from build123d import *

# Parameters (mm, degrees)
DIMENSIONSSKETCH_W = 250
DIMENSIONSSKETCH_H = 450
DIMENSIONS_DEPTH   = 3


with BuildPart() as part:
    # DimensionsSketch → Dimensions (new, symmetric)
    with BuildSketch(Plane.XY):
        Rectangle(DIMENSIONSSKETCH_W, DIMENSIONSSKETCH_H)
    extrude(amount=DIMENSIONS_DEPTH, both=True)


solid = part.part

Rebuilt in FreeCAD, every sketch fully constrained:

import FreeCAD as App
import Part
import Sketcher
from FreeCAD import Vector


def add_polygon(sketch, points):
    """Adds a closed chain of lines whose ends are joined by coincident constraints."""
    first, n = sketch.GeometryCount, len(points)
    for a, b in zip(points, points[1:] + points[:1]):
        sketch.addGeometry(Part.LineSegment(App.Vector(*a, 0), App.Vector(*b, 0)), False)
    for i in range(n):
        sketch.addConstraint(Sketcher.Constraint("Coincident", first + i, 2, first + (i + 1) % n, 1))

doc = App.newDocument("Part")
body = doc.addObject("PartDesign::Body", "Body")

# Sketch on XY plane
sketch1 = doc.addObject("Sketcher::SketchObject", "Sketch")
body.addObject(sketch1)
sketch1.AttachmentSupport = (doc.XY_Plane, [""])
sketch1.MapMode = "FlatFace"
add_polygon(sketch1, [(-125, 225), (-125, -225), (125, -225), (125, 225)])  # lines 0-3
sketch1.addConstraint([
    Sketcher.Constraint("Vertical", 0),
    Sketcher.Constraint("Horizontal", 1),
    Sketcher.Constraint("Vertical", 2),
    Sketcher.Constraint("Horizontal", 3),
    Sketcher.Constraint("Symmetric", 0, 2, 2, 2, -1, 1),
    Sketcher.Constraint("DistanceX", 1, 1, 1, 2, 250.0),
    Sketcher.Constraint("DistanceY", 0, 2, 0, 1, 450.0),
])
pad1 = doc.addObject("PartDesign::Pad", "Pad")
body.addObject(pad1)
pad1.Profile = sketch1
pad1.Length = 6
pad1.Midplane = True

doc.recompute()
